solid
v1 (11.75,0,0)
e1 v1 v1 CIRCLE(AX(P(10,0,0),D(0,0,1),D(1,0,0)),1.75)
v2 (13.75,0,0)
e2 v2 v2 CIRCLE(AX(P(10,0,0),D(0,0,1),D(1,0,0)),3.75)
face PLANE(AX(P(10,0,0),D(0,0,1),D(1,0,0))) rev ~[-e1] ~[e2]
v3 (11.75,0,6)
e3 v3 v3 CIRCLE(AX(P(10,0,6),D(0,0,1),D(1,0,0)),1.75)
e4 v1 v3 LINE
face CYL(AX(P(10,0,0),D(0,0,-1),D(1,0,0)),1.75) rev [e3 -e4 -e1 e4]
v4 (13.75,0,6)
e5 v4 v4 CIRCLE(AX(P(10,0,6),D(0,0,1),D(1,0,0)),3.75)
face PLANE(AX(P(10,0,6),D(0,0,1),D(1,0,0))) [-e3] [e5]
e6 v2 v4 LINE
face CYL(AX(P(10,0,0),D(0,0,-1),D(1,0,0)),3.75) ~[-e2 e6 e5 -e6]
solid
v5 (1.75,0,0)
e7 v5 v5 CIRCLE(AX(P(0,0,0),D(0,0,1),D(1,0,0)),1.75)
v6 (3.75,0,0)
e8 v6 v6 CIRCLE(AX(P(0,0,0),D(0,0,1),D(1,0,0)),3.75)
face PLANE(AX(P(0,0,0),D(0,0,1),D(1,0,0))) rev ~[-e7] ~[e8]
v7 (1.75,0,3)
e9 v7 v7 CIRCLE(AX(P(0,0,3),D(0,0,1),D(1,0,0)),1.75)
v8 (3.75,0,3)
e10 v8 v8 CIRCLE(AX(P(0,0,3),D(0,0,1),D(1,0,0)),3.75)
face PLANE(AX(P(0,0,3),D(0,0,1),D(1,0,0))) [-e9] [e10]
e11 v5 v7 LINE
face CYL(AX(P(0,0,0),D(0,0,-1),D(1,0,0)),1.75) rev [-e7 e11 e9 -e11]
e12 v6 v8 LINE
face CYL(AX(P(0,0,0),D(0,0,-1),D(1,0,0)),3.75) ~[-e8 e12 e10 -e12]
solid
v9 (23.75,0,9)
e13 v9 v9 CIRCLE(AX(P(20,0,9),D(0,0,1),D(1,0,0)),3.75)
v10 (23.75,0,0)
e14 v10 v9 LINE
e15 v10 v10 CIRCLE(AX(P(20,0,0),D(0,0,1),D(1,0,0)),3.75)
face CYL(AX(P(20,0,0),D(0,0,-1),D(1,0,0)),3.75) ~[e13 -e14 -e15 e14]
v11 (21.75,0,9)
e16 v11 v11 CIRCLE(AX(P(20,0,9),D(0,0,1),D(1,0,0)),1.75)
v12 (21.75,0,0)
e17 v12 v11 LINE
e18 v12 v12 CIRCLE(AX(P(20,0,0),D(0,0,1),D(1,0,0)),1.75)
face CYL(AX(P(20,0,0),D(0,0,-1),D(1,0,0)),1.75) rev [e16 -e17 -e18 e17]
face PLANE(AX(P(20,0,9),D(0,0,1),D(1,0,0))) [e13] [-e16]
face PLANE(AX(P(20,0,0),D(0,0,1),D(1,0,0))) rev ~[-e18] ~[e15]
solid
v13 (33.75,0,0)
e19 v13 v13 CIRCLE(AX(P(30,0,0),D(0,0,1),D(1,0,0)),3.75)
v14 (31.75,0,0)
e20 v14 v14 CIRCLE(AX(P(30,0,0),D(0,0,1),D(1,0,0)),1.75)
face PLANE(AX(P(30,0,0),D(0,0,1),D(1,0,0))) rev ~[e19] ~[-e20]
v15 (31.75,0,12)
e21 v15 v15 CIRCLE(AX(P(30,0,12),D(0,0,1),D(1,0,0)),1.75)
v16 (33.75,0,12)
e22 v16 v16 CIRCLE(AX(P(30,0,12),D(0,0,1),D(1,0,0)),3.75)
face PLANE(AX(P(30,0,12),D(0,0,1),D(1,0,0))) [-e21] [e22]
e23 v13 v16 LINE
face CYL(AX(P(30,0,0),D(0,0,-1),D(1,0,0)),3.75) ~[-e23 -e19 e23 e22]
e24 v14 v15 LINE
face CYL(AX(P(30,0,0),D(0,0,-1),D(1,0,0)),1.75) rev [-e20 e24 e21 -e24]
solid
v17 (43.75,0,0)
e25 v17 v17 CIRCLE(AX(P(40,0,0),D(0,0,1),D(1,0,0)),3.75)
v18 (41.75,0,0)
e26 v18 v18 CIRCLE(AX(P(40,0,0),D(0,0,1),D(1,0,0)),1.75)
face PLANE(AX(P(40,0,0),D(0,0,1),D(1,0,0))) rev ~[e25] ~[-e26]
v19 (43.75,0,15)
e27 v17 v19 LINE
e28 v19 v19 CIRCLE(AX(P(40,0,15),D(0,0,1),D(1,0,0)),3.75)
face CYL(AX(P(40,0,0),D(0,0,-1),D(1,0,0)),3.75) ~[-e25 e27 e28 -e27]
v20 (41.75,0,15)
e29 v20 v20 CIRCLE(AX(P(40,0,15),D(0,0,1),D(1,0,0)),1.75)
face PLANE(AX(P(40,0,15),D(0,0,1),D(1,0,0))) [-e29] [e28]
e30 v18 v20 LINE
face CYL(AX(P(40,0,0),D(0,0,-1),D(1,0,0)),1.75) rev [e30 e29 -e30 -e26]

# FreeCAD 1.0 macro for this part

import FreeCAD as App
import Part
import Sketcher
from FreeCAD import Vector
Q = App.Units.Quantity

doc = App.newDocument("Part")
params = doc.addObject("Spreadsheet::Sheet", "Params")
for row, (alias, value) in enumerate([
    ("sketch1_diameter", "7.5 mm"),
    ("sketch1_diameter2", "3.5 mm"),
    ("pad1_length", "3 mm"),
    ("sketch2_diameter", "7.5 mm"),
    ("sketch2_diameter2", "3.5 mm"),
    ("pad2_length", "6 mm"),
    ("sketch3_diameter", "7.5 mm"),
    ("sketch3_diameter2", "3.5 mm"),
    ("pad3_length", "9 mm"),
    ("sketch4_diameter", "7.5 mm"),
    ("sketch4_diameter2", "3.5 mm"),
    ("pad4_length", "12 mm"),
    ("sketch5_diameter", "7.5 mm"),
    ("sketch5_diameter2", "3.5 mm"),
    ("pad5_length", "15 mm"),
], start=1):
    params.set(f"A{row}", alias)
    params.set(f"B{row}", "=" + value)
    params.setAlias(f"B{row}", alias)

body = doc.addObject("PartDesign::Body", "Body")

# Sketch on XY plane
sketch1 = body.newObject("Sketcher::SketchObject", "Sketch")
sketch1.AttachmentSupport = (doc.getObject("XY_Plane"), [""])
sketch1.MapMode = "FlatFace"
sketch1.addGeometry(Part.Circle(Vector(0, 0, 0), Vector(0, 0, 1), 3.8), False)
sketch1.addGeometry(Part.Circle(Vector(0, 0, 0), Vector(0, 0, 1), 1.8), False)
sketch1.addConstraint(Sketcher.Constraint("Coincident", 0, 3, -1, 1))
sketch1.addConstraint(Sketcher.Constraint("Coincident", 1, 3, -1, 1))
sketch1.addConstraint(Sketcher.Constraint("Diameter", 0, Q("7.5 mm")))
sketch1.addConstraint(Sketcher.Constraint("Diameter", 1, Q("3.5 mm")))
sketch1.setExpression("Constraints[2]", "Params.sketch1_diameter")
sketch1.setExpression("Constraints[3]", "Params.sketch1_diameter2")
pad1 = body.newObject("PartDesign::Pad", "Pad")
pad1.Profile = sketch1
pad1.setExpression("Length", "Params.pad1_length")
body2 = doc.addObject("PartDesign::Body", "Body001")

# Sketch on XY plane
sketch2 = body2.newObject("Sketcher::SketchObject", "Sketch001")
sketch2.AttachmentSupport = (doc.getObject("XY_Plane001"), [""])
sketch2.MapMode = "FlatFace"
sketch2.addGeometry(Part.Circle(Vector(10, 0, 0), Vector(0, 0, 1), 3.8), False)
sketch2.addGeometry(Part.Circle(Vector(10, 0, 0), Vector(0, 0, 1), 1.8), False)
sketch2.addConstraint(Sketcher.Constraint("Coincident", 1, 3, 0, 3))
sketch2.addConstraint(Sketcher.Constraint("PointOnObject", 0, 3, -1))
sketch2.addConstraint(Sketcher.Constraint("Diameter", 0, Q("7.5 mm")))
sketch2.addConstraint(Sketcher.Constraint("Diameter", 1, Q("3.5 mm")))
sketch2.addConstraint(Sketcher.Constraint("DistanceX", -1, 1, 0, 3, Q("10 mm")))
sketch2.setExpression("Constraints[2]", "Params.sketch2_diameter")
sketch2.setExpression("Constraints[3]", "Params.sketch2_diameter2")
pad2 = body2.newObject("PartDesign::Pad", "Pad001")
pad2.Profile = sketch2
pad2.setExpression("Length", "Params.pad2_length")
body3 = doc.addObject("PartDesign::Body", "Body002")

# Sketch on XY plane
sketch3 = body3.newObject("Sketcher::SketchObject", "Sketch002")
sketch3.AttachmentSupport = (doc.getObject("XY_Plane002"), [""])
sketch3.MapMode = "FlatFace"
sketch3.addGeometry(Part.Circle(Vector(20, 0, 0), Vector(0, 0, 1), 3.8), False)
sketch3.addGeometry(Part.Circle(Vector(20, 0, 0), Vector(0, 0, 1), 1.8), False)
sketch3.addConstraint(Sketcher.Constraint("Coincident", 1, 3, 0, 3))
sketch3.addConstraint(Sketcher.Constraint("PointOnObject", 0, 3, -1))
sketch3.addConstraint(Sketcher.Constraint("Diameter", 0, Q("7.5 mm")))
sketch3.addConstraint(Sketcher.Constraint("Diameter", 1, Q("3.5 mm")))
sketch3.addConstraint(Sketcher.Constraint("DistanceX", -1, 1, 0, 3, Q("20 mm")))
sketch3.setExpression("Constraints[2]", "Params.sketch3_diameter")
sketch3.setExpression("Constraints[3]", "Params.sketch3_diameter2")
pad3 = body3.newObject("PartDesign::Pad", "Pad002")
pad3.Profile = sketch3
pad3.setExpression("Length", "Params.pad3_length")
body4 = doc.addObject("PartDesign::Body", "Body003")

# Sketch on XY plane
sketch4 = body4.newObject("Sketcher::SketchObject", "Sketch003")
sketch4.AttachmentSupport = (doc.getObject("XY_Plane003"), [""])
sketch4.MapMode = "FlatFace"
sketch4.addGeometry(Part.Circle(Vector(30, 0, 0), Vector(0, 0, 1), 3.8), False)
sketch4.addGeometry(Part.Circle(Vector(30, 0, 0), Vector(0, 0, 1), 1.8), False)
sketch4.addConstraint(Sketcher.Constraint("Coincident", 1, 3, 0, 3))
sketch4.addConstraint(Sketcher.Constraint("PointOnObject", 0, 3, -1))
sketch4.addConstraint(Sketcher.Constraint("Diameter", 0, Q("7.5 mm")))
sketch4.addConstraint(Sketcher.Constraint("Diameter", 1, Q("3.5 mm")))
sketch4.addConstraint(Sketcher.Constraint("DistanceX", -1, 1, 0, 3, Q("30 mm")))
sketch4.setExpression("Constraints[2]", "Params.sketch4_diameter")
sketch4.setExpression("Constraints[3]", "Params.sketch4_diameter2")
pad4 = body4.newObject("PartDesign::Pad", "Pad003")
pad4.Profile = sketch4
pad4.setExpression("Length", "Params.pad4_length")
body5 = doc.addObject("PartDesign::Body", "Body004")

# Sketch on XY plane
sketch5 = body5.newObject("Sketcher::SketchObject", "Sketch004")
sketch5.AttachmentSupport = (doc.getObject("XY_Plane004"), [""])
sketch5.MapMode = "FlatFace"
sketch5.addGeometry(Part.Circle(Vector(40, 0, 0), Vector(0, 0, 1), 3.8), False)
sketch5.addGeometry(Part.Circle(Vector(40, 0, 0), Vector(0, 0, 1), 1.8), False)
sketch5.addConstraint(Sketcher.Constraint("Coincident", 1, 3, 0, 3))
sketch5.addConstraint(Sketcher.Constraint("PointOnObject", 0, 3, -1))
sketch5.addConstraint(Sketcher.Constraint("Diameter", 0, Q("7.5 mm")))
sketch5.addConstraint(Sketcher.Constraint("Diameter", 1, Q("3.5 mm")))
sketch5.addConstraint(Sketcher.Constraint("DistanceX", -1, 1, 0, 3, Q("40 mm")))
sketch5.setExpression("Constraints[2]", "Params.sketch5_diameter")
sketch5.setExpression("Constraints[3]", "Params.sketch5_diameter2")
pad5 = body5.newObject("PartDesign::Pad", "Pad004")
pad5.Profile = sketch5
pad5.setExpression("Length", "Params.pad5_length")

doc.recompute()
